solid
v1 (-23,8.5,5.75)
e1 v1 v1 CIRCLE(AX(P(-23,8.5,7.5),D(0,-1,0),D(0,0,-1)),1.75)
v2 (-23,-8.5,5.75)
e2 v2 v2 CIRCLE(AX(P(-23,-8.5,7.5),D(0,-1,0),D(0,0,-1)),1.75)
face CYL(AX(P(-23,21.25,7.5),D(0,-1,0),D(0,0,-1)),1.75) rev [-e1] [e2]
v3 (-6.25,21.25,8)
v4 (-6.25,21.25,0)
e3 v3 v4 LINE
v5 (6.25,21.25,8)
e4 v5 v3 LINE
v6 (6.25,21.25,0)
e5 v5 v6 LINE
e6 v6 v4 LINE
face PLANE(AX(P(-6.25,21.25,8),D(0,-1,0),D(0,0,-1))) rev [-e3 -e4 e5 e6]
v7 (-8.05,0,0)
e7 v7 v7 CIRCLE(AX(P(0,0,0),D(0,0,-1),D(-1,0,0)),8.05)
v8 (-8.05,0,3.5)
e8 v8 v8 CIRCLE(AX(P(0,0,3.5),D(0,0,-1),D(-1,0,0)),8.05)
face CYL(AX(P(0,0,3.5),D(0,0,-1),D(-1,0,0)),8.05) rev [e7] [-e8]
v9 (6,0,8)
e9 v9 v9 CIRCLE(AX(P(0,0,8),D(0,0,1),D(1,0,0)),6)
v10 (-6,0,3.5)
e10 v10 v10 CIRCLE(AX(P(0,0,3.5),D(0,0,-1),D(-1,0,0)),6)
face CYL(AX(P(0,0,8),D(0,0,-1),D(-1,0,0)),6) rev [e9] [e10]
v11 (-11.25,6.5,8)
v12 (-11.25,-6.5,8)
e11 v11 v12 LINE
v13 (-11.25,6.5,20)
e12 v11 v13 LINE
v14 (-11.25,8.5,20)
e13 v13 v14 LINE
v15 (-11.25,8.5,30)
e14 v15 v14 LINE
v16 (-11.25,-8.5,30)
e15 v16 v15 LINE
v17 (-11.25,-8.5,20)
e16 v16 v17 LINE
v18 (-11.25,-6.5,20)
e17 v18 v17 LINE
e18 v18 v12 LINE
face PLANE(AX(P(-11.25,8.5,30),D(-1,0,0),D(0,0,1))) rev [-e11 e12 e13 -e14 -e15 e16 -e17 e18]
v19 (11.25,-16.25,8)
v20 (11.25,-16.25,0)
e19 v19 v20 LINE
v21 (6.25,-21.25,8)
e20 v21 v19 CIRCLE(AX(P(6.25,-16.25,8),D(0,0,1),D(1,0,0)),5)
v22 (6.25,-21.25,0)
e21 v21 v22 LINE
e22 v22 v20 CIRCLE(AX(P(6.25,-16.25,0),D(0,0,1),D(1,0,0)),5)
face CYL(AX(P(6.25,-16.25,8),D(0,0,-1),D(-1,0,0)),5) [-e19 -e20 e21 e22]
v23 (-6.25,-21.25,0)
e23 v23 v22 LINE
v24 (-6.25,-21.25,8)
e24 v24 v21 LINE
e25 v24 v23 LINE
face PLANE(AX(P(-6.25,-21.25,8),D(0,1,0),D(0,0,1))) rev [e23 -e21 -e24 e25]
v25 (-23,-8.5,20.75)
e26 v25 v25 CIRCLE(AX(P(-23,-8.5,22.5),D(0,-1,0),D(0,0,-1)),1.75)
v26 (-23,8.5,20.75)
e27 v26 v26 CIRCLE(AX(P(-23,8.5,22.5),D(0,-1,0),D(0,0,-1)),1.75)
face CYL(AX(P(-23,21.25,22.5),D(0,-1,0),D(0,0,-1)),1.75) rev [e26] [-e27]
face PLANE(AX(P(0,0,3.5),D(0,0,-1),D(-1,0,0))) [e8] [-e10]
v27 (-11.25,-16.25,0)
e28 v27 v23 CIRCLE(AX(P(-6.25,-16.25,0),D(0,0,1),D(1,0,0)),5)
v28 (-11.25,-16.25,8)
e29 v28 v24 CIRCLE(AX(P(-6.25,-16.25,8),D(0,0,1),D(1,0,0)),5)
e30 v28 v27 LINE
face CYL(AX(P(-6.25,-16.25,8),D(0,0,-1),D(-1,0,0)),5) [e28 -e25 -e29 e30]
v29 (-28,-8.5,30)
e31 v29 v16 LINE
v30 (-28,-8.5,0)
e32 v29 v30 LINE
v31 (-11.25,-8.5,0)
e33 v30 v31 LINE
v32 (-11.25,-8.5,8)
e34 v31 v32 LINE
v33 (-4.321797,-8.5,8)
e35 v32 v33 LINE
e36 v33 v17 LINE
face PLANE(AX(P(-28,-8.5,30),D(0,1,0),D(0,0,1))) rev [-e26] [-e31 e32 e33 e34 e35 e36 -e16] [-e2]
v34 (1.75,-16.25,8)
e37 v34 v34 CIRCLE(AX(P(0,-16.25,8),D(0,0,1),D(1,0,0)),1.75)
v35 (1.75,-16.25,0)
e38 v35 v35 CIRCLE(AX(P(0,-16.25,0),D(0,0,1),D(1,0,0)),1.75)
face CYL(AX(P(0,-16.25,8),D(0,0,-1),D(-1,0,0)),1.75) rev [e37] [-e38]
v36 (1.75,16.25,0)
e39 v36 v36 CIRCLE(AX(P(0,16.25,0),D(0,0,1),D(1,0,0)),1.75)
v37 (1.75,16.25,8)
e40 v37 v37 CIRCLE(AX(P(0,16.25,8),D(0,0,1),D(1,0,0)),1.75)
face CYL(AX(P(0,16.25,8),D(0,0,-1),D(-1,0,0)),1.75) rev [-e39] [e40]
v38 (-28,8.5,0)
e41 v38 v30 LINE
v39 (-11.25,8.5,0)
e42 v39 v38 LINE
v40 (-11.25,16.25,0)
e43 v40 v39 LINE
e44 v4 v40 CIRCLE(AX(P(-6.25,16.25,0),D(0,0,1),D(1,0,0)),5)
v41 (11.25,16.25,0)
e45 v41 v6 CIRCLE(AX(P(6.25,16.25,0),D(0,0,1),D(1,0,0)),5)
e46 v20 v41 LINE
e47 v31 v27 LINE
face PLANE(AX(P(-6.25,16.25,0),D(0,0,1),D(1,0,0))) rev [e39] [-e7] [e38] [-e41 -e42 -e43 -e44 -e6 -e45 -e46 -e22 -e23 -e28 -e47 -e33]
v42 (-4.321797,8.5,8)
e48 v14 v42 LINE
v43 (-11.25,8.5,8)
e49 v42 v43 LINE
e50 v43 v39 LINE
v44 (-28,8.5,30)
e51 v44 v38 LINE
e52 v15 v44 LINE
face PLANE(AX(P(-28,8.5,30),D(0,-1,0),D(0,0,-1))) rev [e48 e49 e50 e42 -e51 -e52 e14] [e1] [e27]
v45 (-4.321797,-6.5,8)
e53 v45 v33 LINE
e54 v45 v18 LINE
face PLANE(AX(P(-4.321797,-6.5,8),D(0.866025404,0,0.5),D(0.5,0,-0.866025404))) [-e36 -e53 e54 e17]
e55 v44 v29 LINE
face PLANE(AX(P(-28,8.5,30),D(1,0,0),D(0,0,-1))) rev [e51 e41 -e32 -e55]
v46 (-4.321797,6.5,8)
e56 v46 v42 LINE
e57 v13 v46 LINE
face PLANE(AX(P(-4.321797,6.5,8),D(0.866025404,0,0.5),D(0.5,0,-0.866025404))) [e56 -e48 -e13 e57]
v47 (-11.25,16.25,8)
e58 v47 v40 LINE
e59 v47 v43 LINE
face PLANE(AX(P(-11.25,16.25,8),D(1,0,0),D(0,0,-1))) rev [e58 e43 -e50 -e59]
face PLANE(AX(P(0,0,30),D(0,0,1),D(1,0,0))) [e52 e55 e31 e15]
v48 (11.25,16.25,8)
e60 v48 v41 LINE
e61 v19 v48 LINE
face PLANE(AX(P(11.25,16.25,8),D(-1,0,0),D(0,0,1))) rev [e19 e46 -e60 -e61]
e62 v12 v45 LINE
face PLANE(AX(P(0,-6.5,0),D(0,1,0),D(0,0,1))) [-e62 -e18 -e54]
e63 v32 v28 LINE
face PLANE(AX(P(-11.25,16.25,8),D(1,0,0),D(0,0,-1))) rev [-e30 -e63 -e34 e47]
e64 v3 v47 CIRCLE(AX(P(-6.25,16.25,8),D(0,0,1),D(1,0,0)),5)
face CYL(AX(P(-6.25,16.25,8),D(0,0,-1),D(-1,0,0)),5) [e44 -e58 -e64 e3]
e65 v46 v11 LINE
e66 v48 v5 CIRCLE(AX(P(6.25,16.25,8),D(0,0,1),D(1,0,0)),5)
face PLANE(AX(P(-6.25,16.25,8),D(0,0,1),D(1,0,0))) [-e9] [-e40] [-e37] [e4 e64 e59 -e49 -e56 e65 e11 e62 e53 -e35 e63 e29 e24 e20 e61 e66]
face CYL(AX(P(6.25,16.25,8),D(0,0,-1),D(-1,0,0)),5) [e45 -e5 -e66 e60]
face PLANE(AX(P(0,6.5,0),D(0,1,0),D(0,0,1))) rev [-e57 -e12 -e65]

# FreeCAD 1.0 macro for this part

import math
import FreeCAD as App
import Part
import Sketcher

V = App.Vector
Q = App.Units.Quantity


def add_polygon(sketch, points):
    """Adds a closed chain of lines whose ends are joined by coincident constraints."""
    first, n = sketch.GeometryCount, len(points)
    for a, b in zip(points, points[1:] + points[:1]):
        sketch.addGeometry(Part.LineSegment(App.Vector(*a, 0), App.Vector(*b, 0)), False)
    for i in range(n):
        sketch.addConstraint(Sketcher.Constraint("Coincident", first + i, 2, first + (i + 1) % n, 1))

doc = App.newDocument("Part")
body = doc.addObject("PartDesign::Body", "Body")

sketch1 = body.newObject("Sketcher::SketchObject", "Sketch")
sketch1.AttachmentSupport = (doc.getObject("XY_Plane"), [""])
sketch1.MapMode = "FlatFace"
sketch1.addGeometry([
    Part.LineSegment(V(6.2, 21.2, 0), V(-6.2, 21.2, 0)),
    Part.ArcOfCircle(Part.Circle(V(-6.2, 16.2, 0), V(0, 0, 1), 5), math.radians(90), math.radians(180)),
    Part.LineSegment(V(-11.2, 16.2, 0), V(-11.2, -16.2, 0)),
    Part.ArcOfCircle(Part.Circle(V(-6.2, -16.2, 0), V(0, 0, 1), 5), math.radians(180), math.radians(270)),
    Part.LineSegment(V(-6.2, -21.2, 0), V(6.2, -21.2, 0)),
    Part.ArcOfCircle(Part.Circle(V(6.2, -16.2, 0), V(0, 0, 1), 5), math.radians(-90), math.radians(0)),
    Part.LineSegment(V(11.2, -16.2, 0), V(11.2, 16.2, 0)),
    Part.ArcOfCircle(Part.Circle(V(6.2, 16.2, 0), V(0, 0, 1), 5), math.radians(0), math.radians(90)),
    Part.Circle(V(0, -16.2, 0), V(0, 0, 1), 1.8),
    Part.Circle(V(0, 0, 0), V(0, 0, 1), 6),
    Part.Circle(V(0, 16.2, 0), V(0, 0, 1), 1.8),
], False)
sketch1.addConstraint([
    Sketcher.Constraint("Tangent", 0, 2, 1, 1),
    Sketcher.Constraint("Tangent", 1, 2, 2, 1),
    Sketcher.Constraint("Tangent", 2, 2, 3, 1),
    Sketcher.Constraint("Tangent", 3, 2, 4, 1),
    Sketcher.Constraint("Tangent", 4, 2, 5, 1),
    Sketcher.Constraint("Tangent", 5, 2, 6, 1),
    Sketcher.Constraint("Tangent", 6, 2, 7, 1),
    Sketcher.Constraint("Tangent", 7, 2, 0, 1),
    Sketcher.Constraint("Horizontal", 0),
    Sketcher.Constraint("Vertical", 2),
    Sketcher.Constraint("Horizontal", 4),
    Sketcher.Constraint("Vertical", 6),
    Sketcher.Constraint("Coincident", 9, 3, -1, 1),
    Sketcher.Constraint("Equal", 1, 3),
    Sketcher.Constraint("Equal", 3, 5),
    Sketcher.Constraint("Equal", 5, 7),
    Sketcher.Constraint("Equal", 8, 10),
    Sketcher.Constraint("Symmetric", 1, 3, 5, 3, -1, 1),
    Sketcher.Constraint("Symmetric", 8, 3, 10, 3, -1, 1),
    Sketcher.Constraint("PointOnObject", 8, 3, -2),
    Sketcher.Constraint("Horizontal", 5, 3, 8, 3),
    Sketcher.Constraint("Diameter", 9, 12.0),
    Sketcher.Constraint("Radius", 1, 5.0),
    Sketcher.Constraint("Diameter", 8, 3.5),
    Sketcher.Constraint("DistanceX", 0, 2, 0, 1, 12.5),
    Sketcher.Constraint("DistanceY", 2, 2, 2, 1, 32.5),
])
pad1 = body.newObject("PartDesign::Pad", "Pad")
pad1.Profile = sketch1
pad1.Length = 8

sketch2 = body.newObject("Sketcher::SketchObject", "Sketch001")
sketch2.AttachmentSupport = (doc.getObject("XY_Plane"), [""])
sketch2.MapMode = "FlatFace"
sketch2.addGeometry(Part.Circle(V(0, 0, 0), V(0, 0, 1), 8), False)
sketch2.addConstraint([
    Sketcher.Constraint("Coincident", 0, 3, -1, 1),
    Sketcher.Constraint("Diameter", 0, 16.1),
])
pocket1 = body.newObject("PartDesign::Pocket", "Pocket")
pocket1.Profile = sketch2
pocket1.Length = 3.5
pocket1.Reversed = True

sketch3 = body.newObject("Sketcher::SketchObject", "Sketch002")
sketch3.AttachmentSupport = (doc.getObject("XY_Plane"), [""])
sketch3.MapMode = "FlatFace"
add_polygon(sketch3, [(-28, 8), (-28, -8), (-11, -8), (-11, 8)])
sketch3.addConstraint([
    Sketcher.Constraint("Vertical", 0),
    Sketcher.Constraint("Horizontal", 1),
    Sketcher.Constraint("Vertical", 2),
    Sketcher.Constraint("Horizontal", 3),
    Sketcher.Constraint("DistanceY", 0, 2, 0, 1, 17.0),
    Sketcher.Constraint("DistanceX", 0, 2, -1, 1, 28.0),
    Sketcher.Constraint("DistanceX", 1, 1, 1, 2, 16.75),
    Sketcher.Constraint("DistanceY", 0, 2, -1, 1, 8.5),
])
pad2 = body.newObject("PartDesign::Pad", "Pad001")
pad2.Profile = sketch3
pad2.Length = 30

sketch4 = body.newObject("Sketcher::SketchObject", "Sketch003")
sketch4.AttachmentSupport = (doc.getObject("XZ_Plane"), [""])
sketch4.MapMode = "FlatFace"
sketch4.AttachmentOffset = App.Placement(V(0, 0, 8.5), App.Rotation())
sketch4.addGeometry([
    Part.Circle(V(-23, 22.5, 0), V(0, 0, 1), 1.8),
    Part.Circle(V(-23, 7.5, 0), V(0, 0, 1), 1.8),
], False)
sketch4.addConstraint([
    Sketcher.Constraint("Equal", 0, 1),
    Sketcher.Constraint("Vertical", 0, 3, 1, 3),
    Sketcher.Constraint("Diameter", 0, 3.5),
    Sketcher.Constraint("DistanceX", 0, 3, -1, 1, 23.0),
    Sketcher.Constraint("DistanceY", 1, 3, 0, 3, 15.0),
    Sketcher.Constraint("DistanceY", -1, 1, 0, 3, 22.5),
])
pocket2 = body.newObject("PartDesign::Pocket", "Pocket001")
pocket2.Profile = sketch4
pocket2.Type = "ThroughAll"

sketch5 = body.newObject("Sketcher::SketchObject", "Sketch004")
sketch5.AttachmentSupport = (doc.getObject("XZ_Plane"), [""])
sketch5.MapMode = "FlatFace"
sketch5.AttachmentOffset = App.Placement(V(0, 0, 8.5), App.Rotation())
add_polygon(sketch5, [(-11, 20), (-11, 8), (-4, 8)])
sketch5.addConstraint([
    Sketcher.Constraint("Vertical", 0),
    Sketcher.Constraint("Horizontal", 1),
    Sketcher.Constraint("DistanceY", 0, 2, 0, 1, 12.0),
    Sketcher.Constraint("Angle", 2, Q("120 deg")),
    Sketcher.Constraint("DistanceY", -1, 1, 0, 2, 8.0),
    Sketcher.Constraint("DistanceX", 0, 2, -1, 1, 11.25),
])
pad3 = body.newObject("PartDesign::Pad", "Pad002")
pad3.Profile = sketch5
pad3.Length = 2
pad3.Reversed = True

sketch6 = body.newObject("Sketcher::SketchObject", "Sketch005")
sketch6.AttachmentSupport = (doc.getObject("XZ_Plane"), [""])
sketch6.MapMode = "FlatFace"
sketch6.AttachmentOffset = App.Placement(V(0, 0, -8.5), App.Rotation())
add_polygon(sketch6, [(-11, 20), (-4, 8), (-11, 8)])
sketch6.addConstraint([
    Sketcher.Constraint("Horizontal", 1),
    Sketcher.Constraint("Vertical", 2),
    Sketcher.Constraint("DistanceY", 2, 1, 2, 2, 12.0),
    Sketcher.Constraint("Angle", 0, Q("-60 deg")),
    Sketcher.Constraint("DistanceY", -1, 1, 0, 2, 8.0),
    Sketcher.Constraint("DistanceX", 1, 2, -1, 1, 11.25),
])
pad4 = body.newObject("PartDesign::Pad", "Pad003")
pad4.Profile = sketch6
pad4.Length = 2

doc.recompute()
